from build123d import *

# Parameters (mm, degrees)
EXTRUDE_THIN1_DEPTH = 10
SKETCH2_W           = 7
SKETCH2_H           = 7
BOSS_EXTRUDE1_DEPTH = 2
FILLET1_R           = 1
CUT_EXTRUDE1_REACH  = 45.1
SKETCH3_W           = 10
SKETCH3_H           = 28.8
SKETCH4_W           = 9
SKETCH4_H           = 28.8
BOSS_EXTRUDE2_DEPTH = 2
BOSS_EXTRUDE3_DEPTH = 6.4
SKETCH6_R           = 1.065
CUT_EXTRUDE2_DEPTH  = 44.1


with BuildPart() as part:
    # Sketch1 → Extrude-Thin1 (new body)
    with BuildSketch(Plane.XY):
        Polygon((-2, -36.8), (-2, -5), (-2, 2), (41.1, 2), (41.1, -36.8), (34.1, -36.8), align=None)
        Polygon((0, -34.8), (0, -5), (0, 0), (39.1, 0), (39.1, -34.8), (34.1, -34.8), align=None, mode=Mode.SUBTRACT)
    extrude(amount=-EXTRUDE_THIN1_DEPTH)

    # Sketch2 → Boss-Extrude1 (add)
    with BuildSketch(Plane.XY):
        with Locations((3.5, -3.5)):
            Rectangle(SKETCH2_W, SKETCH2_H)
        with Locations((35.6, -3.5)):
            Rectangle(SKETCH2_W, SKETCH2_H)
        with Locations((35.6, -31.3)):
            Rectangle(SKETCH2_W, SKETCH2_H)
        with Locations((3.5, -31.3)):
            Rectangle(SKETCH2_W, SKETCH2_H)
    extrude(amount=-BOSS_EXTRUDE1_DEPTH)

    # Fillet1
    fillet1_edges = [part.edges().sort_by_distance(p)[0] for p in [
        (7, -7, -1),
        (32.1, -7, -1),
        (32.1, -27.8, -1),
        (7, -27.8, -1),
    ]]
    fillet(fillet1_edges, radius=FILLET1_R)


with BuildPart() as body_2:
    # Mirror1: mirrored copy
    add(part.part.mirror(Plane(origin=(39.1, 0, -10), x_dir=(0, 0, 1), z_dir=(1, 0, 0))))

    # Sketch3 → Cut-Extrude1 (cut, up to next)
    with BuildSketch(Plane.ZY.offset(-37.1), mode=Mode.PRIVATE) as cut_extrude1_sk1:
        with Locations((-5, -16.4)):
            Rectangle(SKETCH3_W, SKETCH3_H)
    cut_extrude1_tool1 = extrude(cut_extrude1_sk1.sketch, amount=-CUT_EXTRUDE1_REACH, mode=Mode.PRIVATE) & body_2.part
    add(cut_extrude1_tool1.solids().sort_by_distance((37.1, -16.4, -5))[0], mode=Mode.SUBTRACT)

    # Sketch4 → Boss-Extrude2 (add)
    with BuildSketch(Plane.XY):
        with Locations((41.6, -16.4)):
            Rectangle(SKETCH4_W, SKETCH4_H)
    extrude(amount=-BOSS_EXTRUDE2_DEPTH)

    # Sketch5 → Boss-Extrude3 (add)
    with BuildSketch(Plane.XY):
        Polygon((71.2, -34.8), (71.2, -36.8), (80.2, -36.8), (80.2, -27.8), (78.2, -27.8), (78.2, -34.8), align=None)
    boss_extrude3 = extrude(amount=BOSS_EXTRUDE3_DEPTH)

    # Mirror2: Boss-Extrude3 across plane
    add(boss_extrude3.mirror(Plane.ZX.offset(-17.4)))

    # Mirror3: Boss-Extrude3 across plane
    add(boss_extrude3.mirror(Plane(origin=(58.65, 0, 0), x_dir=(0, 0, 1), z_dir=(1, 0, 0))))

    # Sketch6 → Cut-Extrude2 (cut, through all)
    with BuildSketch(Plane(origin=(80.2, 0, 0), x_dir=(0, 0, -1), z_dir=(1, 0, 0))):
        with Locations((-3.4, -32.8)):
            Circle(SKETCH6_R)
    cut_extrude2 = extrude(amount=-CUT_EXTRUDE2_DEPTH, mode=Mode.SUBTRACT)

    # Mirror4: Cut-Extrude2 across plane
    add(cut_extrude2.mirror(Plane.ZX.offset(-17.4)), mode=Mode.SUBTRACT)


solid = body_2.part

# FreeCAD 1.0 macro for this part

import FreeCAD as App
import Part
import Sketcher
Q = App.Units.Quantity


def edges_at(feature, points):
    """Names of the edges that pass closest to the given points."""
    edges = feature.Shape.Edges
    near = lambda p: min(range(len(edges)), key=lambda i: edges[i].distToShape(Part.Vertex(*p))[0])
    return sorted({f"Edge{near(p) + 1}" for p in points})

doc = App.newDocument("Part")
body = doc.addObject("PartDesign::Body", "Body")

sketch1 = body.newObject("Sketcher::SketchObject", "Sketch")
sketch1.AttachmentSupport = (doc.getObject("XY_Plane"), [""])
sketch1.MapMode = "FlatFace"
sketch1.addGeometry([
    Part.LineSegment(App.Vector(-2, 2, 0), App.Vector(-2, -37, 0)),
    Part.LineSegment(App.Vector(-2, -37, 0), App.Vector(41, -37, 0)),
    Part.LineSegment(App.Vector(41, -37, 0), App.Vector(41, 2, 0)),
    Part.LineSegment(App.Vector(41, 2, 0), App.Vector(-2, 2, 0)),
    Part.LineSegment(App.Vector(0, -35, 0), App.Vector(0, 0, 0)),
    Part.LineSegment(App.Vector(0, 0, 0), App.Vector(39, 0, 0)),
    Part.LineSegment(App.Vector(39, 0, 0), App.Vector(39, -35, 0)),
    Part.LineSegment(App.Vector(39, -35, 0), App.Vector(0, -35, 0)),
], False)
sketch1.addConstraint([
    Sketcher.Constraint("Coincident", 0, 2, 1, 1),
    Sketcher.Constraint("Coincident", 1, 2, 2, 1),
    Sketcher.Constraint("Coincident", 2, 2, 3, 1),
    Sketcher.Constraint("Coincident", 3, 2, 0, 1),
    Sketcher.Constraint("Coincident", 4, 2, 5, 1),
    Sketcher.Constraint("Coincident", 5, 2, 6, 1),
    Sketcher.Constraint("Coincident", 6, 2, 7, 1),
    Sketcher.Constraint("Coincident", 7, 2, 4, 1),
    Sketcher.Constraint("Vertical", 0),
    Sketcher.Constraint("Horizontal", 1),
    Sketcher.Constraint("Vertical", 2),
    Sketcher.Constraint("Horizontal", 3),
    Sketcher.Constraint("Vertical", 4),
    Sketcher.Constraint("Horizontal", 5),
    Sketcher.Constraint("Vertical", 6),
    Sketcher.Constraint("Horizontal", 7),
    Sketcher.Constraint("Coincident", 4, 2, -1, 1),
    Sketcher.Constraint("DistanceX", 1, 1, 1, 2, Q("43.1 mm")),
    Sketcher.Constraint("DistanceX", 5, 1, 5, 2, Q("39.1 mm")),
    Sketcher.Constraint("DistanceY", 0, 2, 0, 1, Q("38.8 mm")),
    Sketcher.Constraint("DistanceY", 4, 1, 4, 2, Q("34.8 mm")),
    Sketcher.Constraint("DistanceX", 0, 2, -1, 1, Q("2 mm")),
    Sketcher.Constraint("DistanceY", -1, 1, 2, 2, Q("2 mm")),
])
pad1 = body.newObject("PartDesign::Pad", "Pad")
pad1.Profile = sketch1
pad1.Length = 10
pad1.Reversed = True

sketch2 = body.newObject("Sketcher::SketchObject", "Sketch001")
sketch2.AttachmentSupport = (doc.getObject("XY_Plane"), [""])
sketch2.MapMode = "FlatFace"
sketch2.addGeometry([
    Part.LineSegment(App.Vector(0, 0, 0), App.Vector(0, -7, 0)),
    Part.LineSegment(App.Vector(0, -7, 0), App.Vector(7, -7, 0)),
    Part.LineSegment(App.Vector(7, -7, 0), App.Vector(7, 0, 0)),
    Part.LineSegment(App.Vector(7, 0, 0), App.Vector(0, 0, 0)),
    Part.LineSegment(App.Vector(32, 0, 0), App.Vector(32, -7, 0)),
    Part.LineSegment(App.Vector(32, -7, 0), App.Vector(39, -7, 0)),
    Part.LineSegment(App.Vector(39, -7, 0), App.Vector(39, 0, 0)),
    Part.LineSegment(App.Vector(39, 0, 0), App.Vector(32, 0, 0)),
    Part.LineSegment(App.Vector(32, -28, 0), App.Vector(32, -35, 0)),
    Part.LineSegment(App.Vector(32, -35, 0), App.Vector(39, -35, 0)),
    Part.LineSegment(App.Vector(39, -35, 0), App.Vector(39, -28, 0)),
    Part.LineSegment(App.Vector(39, -28, 0), App.Vector(32, -28, 0)),
    Part.LineSegment(App.Vector(0, -28, 0), App.Vector(0, -35, 0)),
    Part.LineSegment(App.Vector(0, -35, 0), App.Vector(7, -35, 0)),
    Part.LineSegment(App.Vector(7, -35, 0), App.Vector(7, -28, 0)),
    Part.LineSegment(App.Vector(7, -28, 0), App.Vector(0, -28, 0)),
], False)
sketch2.addConstraint([
    Sketcher.Constraint("Coincident", 0, 2, 1, 1),
    Sketcher.Constraint("Coincident", 1, 2, 2, 1),
    Sketcher.Constraint("Coincident", 2, 2, 3, 1),
    Sketcher.Constraint("Coincident", 3, 2, 0, 1),
    Sketcher.Constraint("Coincident", 4, 2, 5, 1),
    Sketcher.Constraint("Coincident", 5, 2, 6, 1),
    Sketcher.Constraint("Coincident", 6, 2, 7, 1),
    Sketcher.Constraint("Coincident", 7, 2, 4, 1),
    Sketcher.Constraint("Coincident", 8, 2, 9, 1),
    Sketcher.Constraint("Coincident", 9, 2, 10, 1),
    Sketcher.Constraint("Coincident", 10, 2, 11, 1),
    Sketcher.Constraint("Coincident", 11, 2, 8, 1),
    Sketcher.Constraint("Coincident", 12, 2, 13, 1),
    Sketcher.Constraint("Coincident", 13, 2, 14, 1),
    Sketcher.Constraint("Coincident", 14, 2, 15, 1),
    Sketcher.Constraint("Coincident", 15, 2, 12, 1),
    Sketcher.Constraint("Vertical", 0),
    Sketcher.Constraint("Horizontal", 1),
    Sketcher.Constraint("Vertical", 2),
    Sketcher.Constraint("Horizontal", 3),
    Sketcher.Constraint("Vertical", 4),
    Sketcher.Constraint("Horizontal", 5),
    Sketcher.Constraint("Vertical", 6),
    Sketcher.Constraint("Horizontal", 7),
    Sketcher.Constraint("Vertical", 8),
    Sketcher.Constraint("Horizontal", 9),
    Sketcher.Constraint("Vertical", 10),
    Sketcher.Constraint("Horizontal", 11),
    Sketcher.Constraint("Vertical", 12),
    Sketcher.Constraint("Horizontal", 13),
    Sketcher.Constraint("Vertical", 14),
    Sketcher.Constraint("Horizontal", 15),
    Sketcher.Constraint("Coincident", 3, 2, -1, 1),
    Sketcher.Constraint("PointOnObject", 6, 2, -1),
    Sketcher.Constraint("PointOnObject", 12, 2, -2),
    Sketcher.Constraint("Horizontal", 1, 2, 4, 2),
    Sketcher.Constraint("Horizontal", 9, 2, 12, 2),
    Sketcher.Constraint("Horizontal", 11, 2, 14, 2),
    Sketcher.Constraint("Vertical", 7, 2, 8, 2),
    Sketcher.Constraint("Vertical", 6, 2, 9, 2),
    Sketcher.Constraint("Vertical", 2, 2, 13, 2),
    Sketcher.Constraint("Equal", 3, 5),
    Sketcher.Constraint("Equal", 15, 0),
    Sketcher.Constraint("Equal", 6, 8),
    Sketcher.Constraint("DistanceX", 1, 1, 1, 2, Q("7 mm")),
    Sketcher.Constraint("DistanceX", -1, 1, 4, 2, Q("32.1 mm")),
    Sketcher.Constraint("DistanceY", 8, 2, -1, 1, Q("34.8 mm")),
])
pad2 = body.newObject("PartDesign::Pad", "Pad001")
pad2.Profile = sketch2
pad2.Length = 2
pad2.Reversed = True
doc.recompute()

fillet = body.newObject("PartDesign::Fillet", "Fillet")
fillet.Base = (pad2, edges_at(pad2, [
    (7, -7, -1),
    (32.1, -7, -1),
    (32.1, -27.8, -1),
    (7, -27.8, -1),
]))
fillet.Radius = 1
body2 = doc.addObject("PartDesign::Body", "Body001")
doc.recompute()

mirroring = doc.addObject("Part::Mirroring", "Mirroring")
mirroring.Source = body
mirroring.Base = App.Vector(39.1, 0, -10)
mirroring.Normal = App.Vector(1, 0, 0)
body2.BaseFeature = mirroring
doc.recompute()

sketch3 = body2.newObject("Sketcher::SketchObject", "Sketch002")
sketch3.AttachmentSupport = (doc.getObject("YZ_Plane001"), [""])
sketch3.MapMode = "FlatFace"
sketch3.AttachmentOffset = App.Placement(App.Vector(0, 0, 37.1), App.Rotation())
sketch3.addGeometry([
    Part.LineSegment(App.Vector(-2, -10, 0), App.Vector(-31, -10, 0)),
    Part.LineSegment(App.Vector(-31, -10, 0), App.Vector(-31, 0, 0)),
    Part.LineSegment(App.Vector(-31, 0, 0), App.Vector(-2, 0, 0)),
    Part.LineSegment(App.Vector(-2, 0, 0), App.Vector(-2, -10, 0)),
], False)
sketch3.addConstraint([
    Sketcher.Constraint("Coincident", 0, 2, 1, 1),
    Sketcher.Constraint("Coincident", 1, 2, 2, 1),
    Sketcher.Constraint("Coincident", 2, 2, 3, 1),
    Sketcher.Constraint("Coincident", 3, 2, 0, 1),
    Sketcher.Constraint("Horizontal", 0),
    Sketcher.Constraint("Vertical", 1),
    Sketcher.Constraint("Horizontal", 2),
    Sketcher.Constraint("Vertical", 3),
    Sketcher.Constraint("PointOnObject", 1, 2, -1),
    Sketcher.Constraint("DistanceY", 1, 1, 1, 2, Q("10 mm")),
    Sketcher.Constraint("DistanceX", 0, 2, 0, 1, Q("28.8 mm")),
    Sketcher.Constraint("DistanceX", 2, 2, -1, 1, Q("2 mm")),
])
pocket1 = body2.newObject("PartDesign::Pocket", "Pocket")
pocket1.Profile = sketch3
pocket1.Length = 9
pocket1.Reversed = True

sketch4 = body2.newObject("Sketcher::SketchObject", "Sketch003")
sketch4.AttachmentSupport = (doc.getObject("XY_Plane001"), [""])
sketch4.MapMode = "FlatFace"
sketch4.addGeometry([
    Part.LineSegment(App.Vector(37, -2, 0), App.Vector(37, -31, 0)),
    Part.LineSegment(App.Vector(37, -31, 0), App.Vector(46, -31, 0)),
    Part.LineSegment(App.Vector(46, -31, 0), App.Vector(46, -2, 0)),
    Part.LineSegment(App.Vector(46, -2, 0), App.Vector(37, -2, 0)),
], False)
sketch4.addConstraint([
    Sketcher.Constraint("Coincident", 0, 2, 1, 1),
    Sketcher.Constraint("Coincident", 1, 2, 2, 1),
    Sketcher.Constraint("Coincident", 2, 2, 3, 1),
    Sketcher.Constraint("Coincident", 3, 2, 0, 1),
    Sketcher.Constraint("Vertical", 0),
    Sketcher.Constraint("Horizontal", 1),
    Sketcher.Constraint("Vertical", 2),
    Sketcher.Constraint("Horizontal", 3),
    Sketcher.Constraint("DistanceX", 1, 1, 1, 2, Q("9 mm")),
    Sketcher.Constraint("DistanceY", 0, 2, 0, 1, Q("28.8 mm")),
    Sketcher.Constraint("DistanceY", 2, 2, -1, 1, Q("2 mm")),
    Sketcher.Constraint("DistanceX", -1, 1, 0, 2, Q("37.1 mm")),
])
pad3 = body2.newObject("PartDesign::Pad", "Pad002")
pad3.Profile = sketch4
pad3.Length = 2
pad3.Reversed = True

sketch5 = body2.newObject("Sketcher::SketchObject", "Sketch004")
sketch5.AttachmentSupport = (doc.getObject("XY_Plane001"), [""])
sketch5.MapMode = "FlatFace"
sketch5.addGeometry([
    Part.LineSegment(App.Vector(71.2, -34.8, 0), App.Vector(71.2, -36.8, 0)),
    Part.LineSegment(App.Vector(71.2, -36.8, 0), App.Vector(80.2, -36.8, 0)),
    Part.LineSegment(App.Vector(80.2, -36.8, 0), App.Vector(80.2, -27.8, 0)),
    Part.LineSegment(App.Vector(80.2, -27.8, 0), App.Vector(78.2, -27.8, 0)),
    Part.LineSegment(App.Vector(78.2, -27.8, 0), App.Vector(78.2, -34.8, 0)),
    Part.LineSegment(App.Vector(78.2, -34.8, 0), App.Vector(71.2, -34.8, 0)),
], False)
sketch5.addConstraint([
    Sketcher.Constraint("Coincident", 0, 2, 1, 1),
    Sketcher.Constraint("Coincident", 1, 2, 2, 1),
    Sketcher.Constraint("Coincident", 2, 2, 3, 1),
    Sketcher.Constraint("Coincident", 3, 2, 4, 1),
    Sketcher.Constraint("Coincident", 4, 2, 5, 1),
    Sketcher.Constraint("Coincident", 5, 2, 0, 1),
    Sketcher.Constraint("Vertical", 0),
    Sketcher.Constraint("Horizontal", 1),
    Sketcher.Constraint("Vertical", 2),
    Sketcher.Constraint("Horizontal", 3),
    Sketcher.Constraint("Vertical", 4),
    Sketcher.Constraint("Horizontal", 5),
    Sketcher.Constraint("Equal", 3, 0),
    Sketcher.Constraint("Equal", 1, 2),
    Sketcher.Constraint("DistanceX", 1, 1, 1, 2, Q("9 mm")),
    Sketcher.Constraint("DistanceX", 3, 2, 3, 1, Q("2 mm")),
    Sketcher.Constraint("DistanceX", -1, 1, 0, 2, Q("71.2 mm")),
    Sketcher.Constraint("DistanceY", 0, 2, -1, 1, Q("36.8 mm")),
])
pad4 = body2.newObject("PartDesign::Pad", "Pad003")
pad4.Profile = sketch5
pad4.Length = 6.4
doc.recompute()

datumplane = body2.newObject("PartDesign::Plane", "DatumPlane")
datumplane.AttachmentSupport = (doc.getObject("XZ_Plane001"), [""])
datumplane.MapMode = "FlatFace"
datumplane.AttachmentOffset = App.Placement(App.Vector(0, 0, 17.4), App.Rotation())
mirrored = body2.newObject("PartDesign::Mirrored", "Mirrored")
mirrored.Originals = [pad4]
mirrored.MirrorPlane = (datumplane, [""])
body2.Tip = mirrored
doc.recompute()

datumplane2 = body2.newObject("PartDesign::Plane", "DatumPlane001")
datumplane2.AttachmentSupport = (doc.getObject("YZ_Plane001"), [""])
datumplane2.MapMode = "FlatFace"
datumplane2.AttachmentOffset = App.Placement(App.Vector(0, 0, 58.65), App.Rotation())
mirrored2 = body2.newObject("PartDesign::Mirrored", "Mirrored001")
mirrored2.Originals = [pad4]
mirrored2.MirrorPlane = (datumplane2, [""])
body2.Tip = mirrored2

sketch6 = body2.newObject("Sketcher::SketchObject", "Sketch005")
sketch6.AttachmentSupport = (doc.getObject("YZ_Plane001"), [""])
sketch6.MapMode = "FlatFace"
sketch6.AttachmentOffset = App.Placement(App.Vector(0, 0, 80.2), App.Rotation())
sketch6.addGeometry(Part.Circle(App.Vector(-32.8, 3.4, 0), App.Vector(0, 0, 1), 1.1), False)
sketch6.addConstraint([
    Sketcher.Constraint("Diameter", 0, Q("2.13 mm")),
    Sketcher.Constraint("DistanceX", 0, 3, -1, 1, Q("32.8 mm")),
    Sketcher.Constraint("DistanceY", -1, 1, 0, 3, Q("3.4 mm")),
])
pocket2 = body2.newObject("PartDesign::Pocket", "Pocket001")
pocket2.Profile = sketch6
pocket2.Type = "ThroughAll"
doc.recompute()

datumplane3 = body2.newObject("PartDesign::Plane", "DatumPlane002")
datumplane3.AttachmentSupport = (doc.getObject("XZ_Plane001"), [""])
datumplane3.MapMode = "FlatFace"
datumplane3.AttachmentOffset = App.Placement(App.Vector(0, 0, 17.4), App.Rotation())
mirrored3 = body2.newObject("PartDesign::Mirrored", "Mirrored002")
mirrored3.Originals = [pocket2]
mirrored3.MirrorPlane = (datumplane3, [""])
body2.Tip = mirrored3
body.Visibility = False
mirroring.Visibility = False

doc.recompute()
